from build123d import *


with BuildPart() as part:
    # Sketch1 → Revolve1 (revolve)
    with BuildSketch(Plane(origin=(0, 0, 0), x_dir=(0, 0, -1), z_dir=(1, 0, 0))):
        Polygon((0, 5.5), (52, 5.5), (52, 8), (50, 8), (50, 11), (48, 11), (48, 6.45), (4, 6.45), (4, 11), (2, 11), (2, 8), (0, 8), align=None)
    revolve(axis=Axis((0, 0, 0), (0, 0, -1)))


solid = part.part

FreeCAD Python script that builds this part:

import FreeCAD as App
import Part
import Sketcher

V = App.Vector
Q = App.Units.Quantity

doc = App.newDocument("Part")
params = doc.addObject("Spreadsheet::Sheet", "Params")
for row, (alias, value) in enumerate([
    ("sketch1_width", "3 mm"),
    ("sketch1_height", "52 mm"),
    ("sketch1_height2", "2 mm"),
    ("sketch1_width2", "2.5 mm"),
    ("sketch1_width3", "4.55 mm"),
    ("revolution_angle", "360 deg"),
], start=1):
    params.set(f"A{row}", alias)
    params.set(f"B{row}", "=" + value)
    params.setAlias(f"B{row}", alias)

body = doc.addObject("PartDesign::Body", "Body")

# Sketch on YZ plane
sketch1 = body.newObject("Sketcher::SketchObject", "Sketch")
sketch1.AttachmentSupport = (doc.getObject("YZ_Plane"), [""])
sketch1.MapMode = "FlatFace"
sketch1.addGeometry([
    Part.LineSegment(V(5.5, 0, 0), V(5.5, -52, 0)),  # 0
    Part.LineSegment(V(5.5, -52, 0), V(8, -52, 0)),  # 1
    Part.LineSegment(V(8, -52, 0), V(8, -50, 0)),  # 2
    Part.LineSegment(V(8, -50, 0), V(11, -50, 0)),  # 3
    Part.LineSegment(V(11, -50, 0), V(11, -48, 0)),  # 4
    Part.LineSegment(V(11, -48, 0), V(6.5, -48, 0)),  # 5
    Part.LineSegment(V(6.5, -48, 0), V(6.5, -4, 0)),  # 6
    Part.LineSegment(V(6.5, -4, 0), V(11, -4, 0)),  # 7
    Part.LineSegment(V(11, -4, 0), V(11, -2, 0)),  # 8
    Part.LineSegment(V(11, -2, 0), V(8, -2, 0)),  # 9
    Part.LineSegment(V(8, -2, 0), V(8, 0, 0)),  # 10
    Part.LineSegment(V(8, 0, 0), V(5.5, 0, 0)),  # 11
], False)
sketch1.addConstraint([
    Sketcher.Constraint("Coincident", 0, 2, 1, 1),
    Sketcher.Constraint("Coincident", 1, 2, 2, 1),
    Sketcher.Constraint("Coincident", 2, 2, 3, 1),
    Sketcher.Constraint("Coincident", 3, 2, 4, 1),
    Sketcher.Constraint("Coincident", 4, 2, 5, 1),
    Sketcher.Constraint("Coincident", 5, 2, 6, 1),
    Sketcher.Constraint("Coincident", 6, 2, 7, 1),
    Sketcher.Constraint("Coincident", 7, 2, 8, 1),
    Sketcher.Constraint("Coincident", 8, 2, 9, 1),
    Sketcher.Constraint("Coincident", 9, 2, 10, 1),
    Sketcher.Constraint("Coincident", 10, 2, 11, 1),
    Sketcher.Constraint("Coincident", 11, 2, 0, 1),
    Sketcher.Constraint("Vertical", 0),
    Sketcher.Constraint("Horizontal", 1),
    Sketcher.Constraint("Vertical", 2),
    Sketcher.Constraint("Horizontal", 3),
    Sketcher.Constraint("Vertical", 4),
    Sketcher.Constraint("Horizontal", 5),
    Sketcher.Constraint("Vertical", 6),
    Sketcher.Constraint("Horizontal", 7),
    Sketcher.Constraint("Vertical", 8),
    Sketcher.Constraint("Horizontal", 9),
    Sketcher.Constraint("Vertical", 10),
    Sketcher.Constraint("Horizontal", 11),
    Sketcher.Constraint("PointOnObject", 10, 2, -1),
    Sketcher.Constraint("Vertical", 4, 2, 7, 2),
    Sketcher.Constraint("Vertical", 2, 2, 9, 2),
    Sketcher.Constraint("Equal", 2, 4),
    Sketcher.Constraint("Equal", 4, 8),
    Sketcher.Constraint("Equal", 8, 10),
    Sketcher.Constraint("DistanceX", 3, 1, 3, 2, Q("3 mm")),
    Sketcher.Constraint("DistanceY", 0, 2, 0, 1, Q("52 mm")),
    Sketcher.Constraint("DistanceY", 2, 1, 2, 2, Q("2 mm")),
    Sketcher.Constraint("DistanceX", 1, 1, 1, 2, Q("2.5 mm")),
    Sketcher.Constraint("DistanceX", -1, 1, 1, 2, Q("8 mm")),
    Sketcher.Constraint("DistanceX", 5, 2, 5, 1, Q("4.55 mm")),
])
sketch1.setExpression("Constraints[30]", "Params.sketch1_width")
sketch1.setExpression("Constraints[31]", "Params.sketch1_height")
sketch1.setExpression("Constraints[32]", "Params.sketch1_height2")
sketch1.setExpression("Constraints[33]", "Params.sketch1_width2")
sketch1.setExpression("Constraints[35]", "Params.sketch1_width3")
revolution = body.newObject("PartDesign::Revolution", "Revolution")
revolution.Profile = sketch1
revolution.ReferenceAxis = (sketch1, ["V_Axis"])
revolution.setExpression("Angle", "Params.revolution_angle")

doc.recompute()
